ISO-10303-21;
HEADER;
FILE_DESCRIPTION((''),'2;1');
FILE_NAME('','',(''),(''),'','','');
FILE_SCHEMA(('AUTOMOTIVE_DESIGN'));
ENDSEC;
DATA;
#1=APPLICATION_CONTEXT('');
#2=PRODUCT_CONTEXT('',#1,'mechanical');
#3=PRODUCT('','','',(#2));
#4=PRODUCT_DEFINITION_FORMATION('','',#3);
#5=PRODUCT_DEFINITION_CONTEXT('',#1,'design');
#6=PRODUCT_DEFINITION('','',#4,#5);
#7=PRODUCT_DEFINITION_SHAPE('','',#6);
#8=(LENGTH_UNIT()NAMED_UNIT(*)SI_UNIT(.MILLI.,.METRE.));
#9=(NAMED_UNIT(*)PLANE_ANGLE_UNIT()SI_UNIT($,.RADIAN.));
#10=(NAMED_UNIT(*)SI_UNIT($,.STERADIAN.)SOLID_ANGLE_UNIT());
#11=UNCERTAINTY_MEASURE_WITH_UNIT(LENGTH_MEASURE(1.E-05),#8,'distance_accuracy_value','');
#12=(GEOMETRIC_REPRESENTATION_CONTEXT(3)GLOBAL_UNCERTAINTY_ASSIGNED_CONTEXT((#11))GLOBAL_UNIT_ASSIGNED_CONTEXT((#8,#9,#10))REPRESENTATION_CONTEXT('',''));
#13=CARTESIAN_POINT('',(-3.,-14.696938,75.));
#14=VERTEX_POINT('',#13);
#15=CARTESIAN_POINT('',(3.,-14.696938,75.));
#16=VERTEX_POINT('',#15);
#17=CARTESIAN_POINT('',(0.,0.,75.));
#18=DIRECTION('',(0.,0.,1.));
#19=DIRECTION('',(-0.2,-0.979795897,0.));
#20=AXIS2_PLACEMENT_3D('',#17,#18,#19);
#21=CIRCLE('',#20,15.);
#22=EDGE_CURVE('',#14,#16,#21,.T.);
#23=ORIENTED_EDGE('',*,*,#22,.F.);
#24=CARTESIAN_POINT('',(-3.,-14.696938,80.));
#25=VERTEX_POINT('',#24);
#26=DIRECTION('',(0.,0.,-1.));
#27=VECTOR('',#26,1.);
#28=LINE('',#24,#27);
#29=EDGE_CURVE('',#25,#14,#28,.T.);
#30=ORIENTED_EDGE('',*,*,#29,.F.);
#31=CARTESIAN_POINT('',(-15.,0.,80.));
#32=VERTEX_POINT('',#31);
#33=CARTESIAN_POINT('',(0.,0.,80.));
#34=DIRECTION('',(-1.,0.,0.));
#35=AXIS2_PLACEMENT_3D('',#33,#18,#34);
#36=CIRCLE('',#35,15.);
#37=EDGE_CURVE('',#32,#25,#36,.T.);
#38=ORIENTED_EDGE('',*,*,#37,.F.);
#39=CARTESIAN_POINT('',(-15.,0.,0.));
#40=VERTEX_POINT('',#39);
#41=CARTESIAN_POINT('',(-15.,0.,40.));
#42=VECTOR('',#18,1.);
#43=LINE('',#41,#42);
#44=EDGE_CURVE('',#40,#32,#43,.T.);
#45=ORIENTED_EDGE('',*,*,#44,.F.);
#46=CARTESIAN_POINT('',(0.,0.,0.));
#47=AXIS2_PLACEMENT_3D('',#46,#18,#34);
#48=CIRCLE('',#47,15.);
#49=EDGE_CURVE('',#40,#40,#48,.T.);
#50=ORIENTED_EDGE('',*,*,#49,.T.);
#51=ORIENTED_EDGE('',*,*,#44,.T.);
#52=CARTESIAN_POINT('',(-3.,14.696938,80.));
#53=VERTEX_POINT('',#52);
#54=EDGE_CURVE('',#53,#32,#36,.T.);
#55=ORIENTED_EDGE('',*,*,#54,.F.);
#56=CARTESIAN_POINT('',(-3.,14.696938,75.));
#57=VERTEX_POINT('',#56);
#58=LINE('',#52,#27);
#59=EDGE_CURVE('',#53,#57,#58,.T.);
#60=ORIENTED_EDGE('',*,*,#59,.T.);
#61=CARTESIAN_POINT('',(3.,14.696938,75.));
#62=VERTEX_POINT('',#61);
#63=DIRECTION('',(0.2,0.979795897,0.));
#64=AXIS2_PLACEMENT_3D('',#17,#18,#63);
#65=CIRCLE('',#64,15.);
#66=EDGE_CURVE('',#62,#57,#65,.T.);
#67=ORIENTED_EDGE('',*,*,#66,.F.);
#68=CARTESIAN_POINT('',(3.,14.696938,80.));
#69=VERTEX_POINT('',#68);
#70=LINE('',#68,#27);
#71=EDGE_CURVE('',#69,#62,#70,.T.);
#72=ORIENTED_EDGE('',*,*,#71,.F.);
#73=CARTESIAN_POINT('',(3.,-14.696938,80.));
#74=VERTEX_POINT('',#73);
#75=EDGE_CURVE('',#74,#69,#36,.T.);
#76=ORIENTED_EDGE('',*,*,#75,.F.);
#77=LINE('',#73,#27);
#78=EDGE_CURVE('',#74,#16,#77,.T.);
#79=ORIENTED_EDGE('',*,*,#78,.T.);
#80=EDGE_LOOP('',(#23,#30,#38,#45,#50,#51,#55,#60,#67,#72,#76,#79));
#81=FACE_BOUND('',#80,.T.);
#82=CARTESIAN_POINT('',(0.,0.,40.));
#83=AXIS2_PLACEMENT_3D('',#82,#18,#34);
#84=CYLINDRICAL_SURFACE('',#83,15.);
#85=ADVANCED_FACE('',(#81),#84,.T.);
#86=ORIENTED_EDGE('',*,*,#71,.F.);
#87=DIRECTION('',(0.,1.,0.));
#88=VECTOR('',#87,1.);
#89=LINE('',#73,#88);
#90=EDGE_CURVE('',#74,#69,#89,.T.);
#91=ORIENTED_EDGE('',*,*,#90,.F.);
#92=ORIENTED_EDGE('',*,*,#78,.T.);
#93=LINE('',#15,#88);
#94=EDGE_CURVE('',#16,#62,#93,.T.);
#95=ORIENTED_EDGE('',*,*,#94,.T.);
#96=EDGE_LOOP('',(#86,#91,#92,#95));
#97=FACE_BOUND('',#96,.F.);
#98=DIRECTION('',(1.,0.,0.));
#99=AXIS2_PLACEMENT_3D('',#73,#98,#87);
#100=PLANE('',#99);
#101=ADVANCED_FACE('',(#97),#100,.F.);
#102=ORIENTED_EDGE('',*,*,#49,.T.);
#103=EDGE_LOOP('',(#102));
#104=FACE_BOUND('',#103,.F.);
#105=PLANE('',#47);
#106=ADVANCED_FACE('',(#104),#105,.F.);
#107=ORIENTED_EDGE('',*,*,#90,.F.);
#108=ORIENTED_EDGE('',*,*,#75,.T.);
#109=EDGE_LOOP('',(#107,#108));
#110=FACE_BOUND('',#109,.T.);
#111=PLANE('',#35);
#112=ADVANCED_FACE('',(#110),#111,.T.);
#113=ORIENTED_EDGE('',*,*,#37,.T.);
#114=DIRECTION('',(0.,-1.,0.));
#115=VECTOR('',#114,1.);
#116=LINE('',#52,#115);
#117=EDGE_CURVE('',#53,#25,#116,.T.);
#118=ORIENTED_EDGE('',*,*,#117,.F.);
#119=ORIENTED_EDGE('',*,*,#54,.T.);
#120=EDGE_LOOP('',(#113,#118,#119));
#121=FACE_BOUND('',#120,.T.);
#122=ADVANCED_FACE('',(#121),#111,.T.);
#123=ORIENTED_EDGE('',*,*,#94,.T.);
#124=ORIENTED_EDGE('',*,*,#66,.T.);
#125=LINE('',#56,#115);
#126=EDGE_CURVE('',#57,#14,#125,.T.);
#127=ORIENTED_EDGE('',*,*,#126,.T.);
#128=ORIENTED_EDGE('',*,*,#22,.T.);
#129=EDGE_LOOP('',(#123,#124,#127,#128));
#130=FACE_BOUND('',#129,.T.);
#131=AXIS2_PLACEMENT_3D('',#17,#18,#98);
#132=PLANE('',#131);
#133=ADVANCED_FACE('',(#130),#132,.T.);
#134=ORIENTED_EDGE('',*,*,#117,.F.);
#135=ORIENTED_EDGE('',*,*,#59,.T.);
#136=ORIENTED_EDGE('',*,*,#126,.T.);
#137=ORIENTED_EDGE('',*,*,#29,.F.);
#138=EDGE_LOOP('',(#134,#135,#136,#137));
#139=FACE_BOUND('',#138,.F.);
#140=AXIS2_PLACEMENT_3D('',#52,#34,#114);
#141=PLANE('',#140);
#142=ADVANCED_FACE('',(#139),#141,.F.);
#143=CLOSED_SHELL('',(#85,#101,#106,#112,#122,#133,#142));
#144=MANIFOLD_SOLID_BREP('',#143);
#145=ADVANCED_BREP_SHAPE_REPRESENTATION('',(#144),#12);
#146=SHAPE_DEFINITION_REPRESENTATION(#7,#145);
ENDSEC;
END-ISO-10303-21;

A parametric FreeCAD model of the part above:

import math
import FreeCAD as App
import Part
import Sketcher
from FreeCAD import Vector


def add_polygon(sketch, points):
    """Adds a closed chain of lines whose ends are joined by coincident constraints."""
    first, n = sketch.GeometryCount, len(points)
    for a, b in zip(points, points[1:] + points[:1]):
        sketch.addGeometry(Part.LineSegment(App.Vector(*a, 0), App.Vector(*b, 0)), False)
    for i in range(n):
        sketch.addConstraint(Sketcher.Constraint("Coincident", first + i, 2, first + (i + 1) % n, 1))

doc = App.newDocument("Part")
body = doc.addObject("PartDesign::Body", "Body")

# Sketch on XZ plane
sketch1 = body.newObject("Sketcher::SketchObject", "Sketch")
sketch1.AttachmentSupport = (doc.getObject("XZ_Plane"), [""])
sketch1.MapMode = "FlatFace"
add_polygon(sketch1, [(-15, 80), (-15, 0), (0, 0), (0, 80)])  # lines 0-3
sketch1.addConstraint([
    Sketcher.Constraint("Vertical", 0),
    Sketcher.Constraint("Horizontal", 1),
    Sketcher.Constraint("Vertical", 2),
    Sketcher.Constraint("Horizontal", 3),
    Sketcher.Constraint("Coincident", 1, 2, -1, 1),
    Sketcher.Constraint("DistanceX", 1, 1, 1, 2, 15.0),
    Sketcher.Constraint("DistanceY", 0, 2, 0, 1, 80.0),
])
revolution = body.newObject("PartDesign::Revolution", "Revolution")
revolution.Profile = sketch1
revolution.ReferenceAxis = (sketch1, ["V_Axis"])
revolution.Angle = 360

# Sketch on XY plane
sketch2 = body.newObject("Sketcher::SketchObject", "Sketch001")
sketch2.AttachmentSupport = (doc.getObject("XY_Plane"), [""])
sketch2.MapMode = "FlatFace"
sketch2.AttachmentOffset = App.Placement(Vector(0, 0, 80), App.Rotation())
sketch2.addGeometry([
    Part.ArcOfCircle(Part.Circle(Vector(0, 0, 0), Vector(0, 0, 1), 15), math.radians(78.463041), math.radians(101.536959)),
    Part.LineSegment(Vector(-3, 14.696938, 0), Vector(-3, -14.696938, 0)),
    Part.ArcOfCircle(Part.Circle(Vector(0, 0, 0), Vector(0, 0, 1), 15), math.radians(-101.536959), math.radians(-78.463041)),
    Part.LineSegment(Vector(3, -14.696938, 0), Vector(3, 14.696938, 0)),
], False)
sketch2.addConstraint([
    Sketcher.Constraint("Coincident", 0, 2, 1, 1),
    Sketcher.Constraint("Coincident", 1, 2, 2, 1),
    Sketcher.Constraint("Coincident", 2, 2, 3, 1),
    Sketcher.Constraint("Coincident", 3, 2, 0, 1),
    Sketcher.Constraint("Vertical", 1),
    Sketcher.Constraint("Vertical", 3),
    Sketcher.Constraint("Coincident", 0, 3, -1, 1),
    Sketcher.Constraint("Coincident", 2, 3, -1, 1),
    Sketcher.Constraint("Equal", 0, 2),
    Sketcher.Constraint("Horizontal", 1, 2, 2, 2),
    Sketcher.Constraint("Radius", 0, 15.0),
    Sketcher.Constraint("DistanceX", 0, 2, -1, 1, 3.0),
])
pocket1 = body.newObject("PartDesign::Pocket", "Pocket")
pocket1.Profile = sketch2
pocket1.Length = 5

doc.recompute()
